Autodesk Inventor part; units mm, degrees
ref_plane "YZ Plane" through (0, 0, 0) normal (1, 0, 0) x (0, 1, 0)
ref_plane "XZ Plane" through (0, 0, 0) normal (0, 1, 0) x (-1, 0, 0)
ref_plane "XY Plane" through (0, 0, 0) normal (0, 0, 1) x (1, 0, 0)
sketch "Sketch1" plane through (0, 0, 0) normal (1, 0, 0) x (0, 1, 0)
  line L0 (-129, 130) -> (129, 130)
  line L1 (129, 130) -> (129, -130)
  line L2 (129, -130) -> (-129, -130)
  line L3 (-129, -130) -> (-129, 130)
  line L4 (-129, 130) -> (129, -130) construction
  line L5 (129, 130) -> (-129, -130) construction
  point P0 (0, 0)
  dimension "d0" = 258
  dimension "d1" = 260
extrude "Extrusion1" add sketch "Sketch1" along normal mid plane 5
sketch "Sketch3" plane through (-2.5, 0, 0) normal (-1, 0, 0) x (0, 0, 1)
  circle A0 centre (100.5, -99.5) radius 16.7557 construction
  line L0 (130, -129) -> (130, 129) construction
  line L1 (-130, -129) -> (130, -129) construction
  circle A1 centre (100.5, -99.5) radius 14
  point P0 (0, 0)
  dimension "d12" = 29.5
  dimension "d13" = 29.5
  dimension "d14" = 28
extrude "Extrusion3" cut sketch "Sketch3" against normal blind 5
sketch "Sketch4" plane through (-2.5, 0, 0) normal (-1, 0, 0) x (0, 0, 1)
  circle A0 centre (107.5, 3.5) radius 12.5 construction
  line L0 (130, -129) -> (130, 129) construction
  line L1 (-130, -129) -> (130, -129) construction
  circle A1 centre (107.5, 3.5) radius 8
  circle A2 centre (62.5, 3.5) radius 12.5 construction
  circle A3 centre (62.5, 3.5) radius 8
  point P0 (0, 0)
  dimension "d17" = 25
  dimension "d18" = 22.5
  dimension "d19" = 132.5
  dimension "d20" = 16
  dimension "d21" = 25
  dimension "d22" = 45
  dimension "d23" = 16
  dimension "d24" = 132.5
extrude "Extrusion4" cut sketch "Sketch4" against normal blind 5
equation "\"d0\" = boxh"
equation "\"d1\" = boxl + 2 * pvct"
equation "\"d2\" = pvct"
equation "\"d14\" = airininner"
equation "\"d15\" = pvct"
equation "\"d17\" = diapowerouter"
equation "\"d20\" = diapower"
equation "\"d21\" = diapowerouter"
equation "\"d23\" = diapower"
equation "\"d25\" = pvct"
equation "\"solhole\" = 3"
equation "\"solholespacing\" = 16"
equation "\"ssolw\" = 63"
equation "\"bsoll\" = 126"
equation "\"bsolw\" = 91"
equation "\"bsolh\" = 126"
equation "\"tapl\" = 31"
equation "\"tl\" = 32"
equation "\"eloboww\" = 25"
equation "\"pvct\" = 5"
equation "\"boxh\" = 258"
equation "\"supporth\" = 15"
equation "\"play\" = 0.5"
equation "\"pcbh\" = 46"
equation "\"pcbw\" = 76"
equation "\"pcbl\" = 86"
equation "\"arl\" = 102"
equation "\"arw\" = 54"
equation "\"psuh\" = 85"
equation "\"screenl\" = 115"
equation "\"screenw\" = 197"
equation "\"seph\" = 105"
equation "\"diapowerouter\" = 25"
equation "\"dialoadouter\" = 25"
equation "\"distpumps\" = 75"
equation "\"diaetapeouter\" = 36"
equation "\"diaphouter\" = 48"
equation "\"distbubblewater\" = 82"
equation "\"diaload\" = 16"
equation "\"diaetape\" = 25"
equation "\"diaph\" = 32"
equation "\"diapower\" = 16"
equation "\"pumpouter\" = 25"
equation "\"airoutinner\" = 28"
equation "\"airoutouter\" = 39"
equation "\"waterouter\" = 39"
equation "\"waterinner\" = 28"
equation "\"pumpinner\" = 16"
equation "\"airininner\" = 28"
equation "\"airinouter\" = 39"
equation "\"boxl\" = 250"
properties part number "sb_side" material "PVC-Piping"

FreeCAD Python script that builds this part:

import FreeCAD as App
import Part
import Sketcher


def add_polygon(sketch, points):
    """Adds a closed chain of lines whose ends are joined by coincident constraints."""
    first, n = sketch.GeometryCount, len(points)
    for a, b in zip(points, points[1:] + points[:1]):
        sketch.addGeometry(Part.LineSegment(App.Vector(*a, 0), App.Vector(*b, 0)), False)
    for i in range(n):
        sketch.addConstraint(Sketcher.Constraint("Coincident", first + i, 2, first + (i + 1) % n, 1))

doc = App.newDocument("Part")
params = doc.addObject("Spreadsheet::Sheet", "Params")
for row, (alias, value) in enumerate([
    ("sketch1_width", "258 mm"),
    ("sketch1_height", "260 mm"),
    ("pad1_length", "5 mm"),
    ("sketch2_diameter", "28 mm"),
    ("pocket1_length", "5 mm"),
    ("sketch3_diameter", "16 mm"),
    ("pocket2_length", "5 mm"),
], start=1):
    params.set(f"A{row}", alias)
    params.set(f"B{row}", "=" + value)
    params.setAlias(f"B{row}", alias)

body = doc.addObject("PartDesign::Body", "Body")

# Sketch on YZ plane
sketch1 = body.newObject("Sketcher::SketchObject", "Sketch")
sketch1.AttachmentSupport = (doc.getObject("YZ_Plane"), [""])
sketch1.MapMode = "FlatFace"
add_polygon(sketch1, [(129, 130), (-129, 130), (-129, -130), (129, -130)])  # lines 0-3
sketch1.addConstraint([
    Sketcher.Constraint("Horizontal", 0),
    Sketcher.Constraint("Vertical", 1),
    Sketcher.Constraint("Horizontal", 2),
    Sketcher.Constraint("Vertical", 3),
    Sketcher.Constraint("Symmetric", 0, 2, 2, 2, -1, 1),
    Sketcher.Constraint("DistanceX", 0, 2, 0, 1, 258.0),
    Sketcher.Constraint("DistanceY", 1, 2, 1, 1, 260.0),
])
sketch1.setExpression("Constraints[9]", "Params.sketch1_width")
sketch1.setExpression("Constraints[10]", "Params.sketch1_height")
pad1 = body.newObject("PartDesign::Pad", "Pad")
pad1.Profile = sketch1
pad1.setExpression("Length", "Params.pad1_length")
pad1.Midplane = True

# Sketch on YZ plane
sketch2 = body.newObject("Sketcher::SketchObject", "Sketch001")
sketch2.AttachmentSupport = (doc.getObject("YZ_Plane"), [""])
sketch2.MapMode = "FlatFace"
sketch2.AttachmentOffset = App.Placement(App.Vector(0, 0, -2.5), App.Rotation())
sketch2.addGeometry(Part.Circle(App.Vector(-100, 100, 0), App.Vector(0, 0, 1), 14), False)
sketch2.addConstraint([
    Sketcher.Constraint("Diameter", 0, 28.0),
    Sketcher.Constraint("DistanceX", 0, 3, -1, 1, 99.5),
    Sketcher.Constraint("DistanceY", -1, 1, 0, 3, 100.5),
])
sketch2.setExpression("Constraints[0]", "Params.sketch2_diameter")
pocket1 = body.newObject("PartDesign::Pocket", "Pocket")
pocket1.Profile = sketch2
pocket1.setExpression("Length", "Params.pocket1_length")
pocket1.Reversed = True

# Sketch on YZ plane
sketch3 = body.newObject("Sketcher::SketchObject", "Sketch002")
sketch3.AttachmentSupport = (doc.getObject("YZ_Plane"), [""])
sketch3.MapMode = "FlatFace"
sketch3.AttachmentOffset = App.Placement(App.Vector(0, 0, -2.5), App.Rotation())
sketch3.addGeometry([
    Part.Circle(App.Vector(4, 108, 0), App.Vector(0, 0, 1), 8),
    Part.Circle(App.Vector(4, 62, 0), App.Vector(0, 0, 1), 8),
], False)
sketch3.addConstraint([
    Sketcher.Constraint("Equal", 0, 1),
    Sketcher.Constraint("Vertical", 0, 3, 1, 3),
    Sketcher.Constraint("Diameter", 0, 16.0),
    Sketcher.Constraint("DistanceY", 1, 3, 0, 3, 45.0),
    Sketcher.Constraint("DistanceX", -1, 1, 0, 3, 3.5),
    Sketcher.Constraint("DistanceY", -1, 1, 0, 3, 107.5),
])
sketch3.setExpression("Constraints[2]", "Params.sketch3_diameter")
pocket2 = body.newObject("PartDesign::Pocket", "Pocket001")
pocket2.Profile = sketch3
pocket2.setExpression("Length", "Params.pocket2_length")
pocket2.Reversed = True

doc.recompute()
